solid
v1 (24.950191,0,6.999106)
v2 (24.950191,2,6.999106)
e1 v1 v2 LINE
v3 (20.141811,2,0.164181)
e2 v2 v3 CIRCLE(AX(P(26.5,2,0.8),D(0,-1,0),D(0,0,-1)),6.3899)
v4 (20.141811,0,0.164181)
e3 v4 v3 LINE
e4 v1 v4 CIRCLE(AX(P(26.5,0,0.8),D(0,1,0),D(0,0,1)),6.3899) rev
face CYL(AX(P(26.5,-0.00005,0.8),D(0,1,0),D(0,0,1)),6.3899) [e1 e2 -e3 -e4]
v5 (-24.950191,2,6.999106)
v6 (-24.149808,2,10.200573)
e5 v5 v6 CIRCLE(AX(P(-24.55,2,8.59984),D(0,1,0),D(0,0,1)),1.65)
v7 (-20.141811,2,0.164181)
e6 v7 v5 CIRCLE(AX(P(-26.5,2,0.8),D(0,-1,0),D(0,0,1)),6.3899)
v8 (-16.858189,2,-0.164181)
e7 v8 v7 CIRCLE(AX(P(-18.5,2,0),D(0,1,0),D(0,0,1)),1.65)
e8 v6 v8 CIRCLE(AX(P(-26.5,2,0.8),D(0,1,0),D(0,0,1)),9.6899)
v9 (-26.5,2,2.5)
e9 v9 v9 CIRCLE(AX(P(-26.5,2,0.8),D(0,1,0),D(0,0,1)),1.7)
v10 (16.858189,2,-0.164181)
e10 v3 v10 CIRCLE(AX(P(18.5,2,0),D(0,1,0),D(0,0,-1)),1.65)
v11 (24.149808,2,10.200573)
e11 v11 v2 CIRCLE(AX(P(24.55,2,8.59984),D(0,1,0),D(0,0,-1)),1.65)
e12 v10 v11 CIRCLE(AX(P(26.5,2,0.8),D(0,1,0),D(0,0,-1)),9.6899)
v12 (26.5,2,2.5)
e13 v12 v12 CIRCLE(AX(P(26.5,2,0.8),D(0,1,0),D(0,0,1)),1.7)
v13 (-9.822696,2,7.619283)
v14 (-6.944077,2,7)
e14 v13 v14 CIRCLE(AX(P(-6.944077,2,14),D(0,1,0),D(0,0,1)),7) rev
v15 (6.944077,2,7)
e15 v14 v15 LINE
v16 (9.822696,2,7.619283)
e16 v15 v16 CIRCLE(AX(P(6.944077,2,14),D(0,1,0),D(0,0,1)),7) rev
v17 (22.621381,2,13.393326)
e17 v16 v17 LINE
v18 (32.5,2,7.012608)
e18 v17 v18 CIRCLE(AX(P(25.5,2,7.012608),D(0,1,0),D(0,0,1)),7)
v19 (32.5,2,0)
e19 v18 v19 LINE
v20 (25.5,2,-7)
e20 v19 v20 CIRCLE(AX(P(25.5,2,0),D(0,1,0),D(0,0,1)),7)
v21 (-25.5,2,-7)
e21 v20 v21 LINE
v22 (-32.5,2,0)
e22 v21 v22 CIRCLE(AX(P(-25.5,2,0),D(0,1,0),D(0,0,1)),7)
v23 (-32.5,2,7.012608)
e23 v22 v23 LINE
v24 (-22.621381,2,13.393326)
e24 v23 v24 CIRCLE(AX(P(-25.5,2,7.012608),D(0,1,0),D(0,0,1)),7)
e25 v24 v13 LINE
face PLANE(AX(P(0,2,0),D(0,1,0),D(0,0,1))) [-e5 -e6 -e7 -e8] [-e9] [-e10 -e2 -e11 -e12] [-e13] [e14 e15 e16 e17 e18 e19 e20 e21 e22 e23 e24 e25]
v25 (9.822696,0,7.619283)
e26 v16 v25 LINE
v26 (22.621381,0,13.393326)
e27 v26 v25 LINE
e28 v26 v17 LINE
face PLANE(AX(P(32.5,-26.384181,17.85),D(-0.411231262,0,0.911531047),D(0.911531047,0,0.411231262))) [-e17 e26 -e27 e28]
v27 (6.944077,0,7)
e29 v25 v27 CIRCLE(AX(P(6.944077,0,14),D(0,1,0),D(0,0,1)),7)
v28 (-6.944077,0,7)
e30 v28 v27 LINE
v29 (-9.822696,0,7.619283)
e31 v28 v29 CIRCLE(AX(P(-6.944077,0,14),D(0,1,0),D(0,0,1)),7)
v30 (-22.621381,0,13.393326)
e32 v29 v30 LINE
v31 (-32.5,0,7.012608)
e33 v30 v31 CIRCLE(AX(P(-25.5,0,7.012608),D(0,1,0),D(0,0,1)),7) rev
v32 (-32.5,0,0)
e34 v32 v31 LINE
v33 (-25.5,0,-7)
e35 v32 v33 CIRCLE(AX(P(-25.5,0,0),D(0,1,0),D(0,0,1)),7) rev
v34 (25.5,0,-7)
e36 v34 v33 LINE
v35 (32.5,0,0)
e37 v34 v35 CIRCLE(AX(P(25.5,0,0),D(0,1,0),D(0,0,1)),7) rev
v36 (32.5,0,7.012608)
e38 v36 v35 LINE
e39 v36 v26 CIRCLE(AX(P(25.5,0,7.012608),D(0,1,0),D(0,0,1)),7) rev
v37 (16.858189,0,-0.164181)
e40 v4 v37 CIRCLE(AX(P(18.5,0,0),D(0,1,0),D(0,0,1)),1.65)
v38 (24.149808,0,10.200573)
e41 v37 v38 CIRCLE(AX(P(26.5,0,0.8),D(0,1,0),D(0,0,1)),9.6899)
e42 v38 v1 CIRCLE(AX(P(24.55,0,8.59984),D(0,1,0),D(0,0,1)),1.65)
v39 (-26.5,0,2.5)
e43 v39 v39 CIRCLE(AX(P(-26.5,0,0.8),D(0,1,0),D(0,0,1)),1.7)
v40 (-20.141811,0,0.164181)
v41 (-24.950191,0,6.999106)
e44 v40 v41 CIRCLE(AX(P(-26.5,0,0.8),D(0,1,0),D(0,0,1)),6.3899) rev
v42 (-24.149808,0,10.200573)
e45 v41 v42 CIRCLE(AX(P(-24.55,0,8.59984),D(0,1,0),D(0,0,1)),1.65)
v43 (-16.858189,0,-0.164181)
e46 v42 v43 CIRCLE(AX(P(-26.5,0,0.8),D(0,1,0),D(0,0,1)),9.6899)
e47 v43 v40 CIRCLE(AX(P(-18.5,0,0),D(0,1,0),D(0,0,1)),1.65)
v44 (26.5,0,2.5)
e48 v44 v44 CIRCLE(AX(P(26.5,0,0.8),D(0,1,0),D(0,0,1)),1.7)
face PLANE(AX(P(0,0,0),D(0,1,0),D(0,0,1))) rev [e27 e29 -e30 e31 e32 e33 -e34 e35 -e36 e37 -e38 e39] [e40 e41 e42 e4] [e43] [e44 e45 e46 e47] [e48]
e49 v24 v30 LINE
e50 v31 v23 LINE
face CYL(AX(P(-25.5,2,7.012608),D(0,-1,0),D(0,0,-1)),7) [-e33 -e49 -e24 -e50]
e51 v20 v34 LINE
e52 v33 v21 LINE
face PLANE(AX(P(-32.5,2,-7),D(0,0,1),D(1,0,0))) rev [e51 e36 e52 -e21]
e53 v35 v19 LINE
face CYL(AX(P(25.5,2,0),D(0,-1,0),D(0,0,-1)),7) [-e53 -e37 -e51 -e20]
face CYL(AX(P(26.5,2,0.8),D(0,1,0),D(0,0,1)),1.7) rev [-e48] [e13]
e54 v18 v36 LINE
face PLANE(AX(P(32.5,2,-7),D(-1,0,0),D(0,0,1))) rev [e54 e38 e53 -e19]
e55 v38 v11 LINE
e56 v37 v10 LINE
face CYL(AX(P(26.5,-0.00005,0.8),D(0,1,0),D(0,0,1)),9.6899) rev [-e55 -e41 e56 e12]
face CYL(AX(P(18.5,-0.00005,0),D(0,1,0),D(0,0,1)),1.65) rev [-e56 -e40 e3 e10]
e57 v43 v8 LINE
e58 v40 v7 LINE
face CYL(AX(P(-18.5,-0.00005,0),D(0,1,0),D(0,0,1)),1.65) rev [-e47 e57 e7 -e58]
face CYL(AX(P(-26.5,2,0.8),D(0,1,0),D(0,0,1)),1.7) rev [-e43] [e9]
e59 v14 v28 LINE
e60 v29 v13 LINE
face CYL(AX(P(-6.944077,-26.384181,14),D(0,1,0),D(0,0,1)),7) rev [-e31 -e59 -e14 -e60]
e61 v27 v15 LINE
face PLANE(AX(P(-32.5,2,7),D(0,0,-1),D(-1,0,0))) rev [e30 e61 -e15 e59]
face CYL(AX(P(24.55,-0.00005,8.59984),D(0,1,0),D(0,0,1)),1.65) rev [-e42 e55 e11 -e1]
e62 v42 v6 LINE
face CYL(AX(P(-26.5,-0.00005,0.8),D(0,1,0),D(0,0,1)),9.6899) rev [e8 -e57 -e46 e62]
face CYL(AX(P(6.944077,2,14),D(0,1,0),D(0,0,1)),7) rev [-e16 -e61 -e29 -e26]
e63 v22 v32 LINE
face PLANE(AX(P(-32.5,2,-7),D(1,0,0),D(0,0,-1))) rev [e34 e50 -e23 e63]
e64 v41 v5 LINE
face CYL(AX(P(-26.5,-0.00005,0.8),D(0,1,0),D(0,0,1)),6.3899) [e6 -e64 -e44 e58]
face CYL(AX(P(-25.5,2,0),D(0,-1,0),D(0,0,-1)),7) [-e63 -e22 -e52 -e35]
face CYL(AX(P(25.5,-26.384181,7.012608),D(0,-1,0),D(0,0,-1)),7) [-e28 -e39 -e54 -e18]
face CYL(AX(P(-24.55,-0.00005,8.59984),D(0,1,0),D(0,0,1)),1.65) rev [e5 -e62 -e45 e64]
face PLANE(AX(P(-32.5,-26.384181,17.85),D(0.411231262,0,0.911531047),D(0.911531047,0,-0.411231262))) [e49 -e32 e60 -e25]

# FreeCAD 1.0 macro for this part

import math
import FreeCAD as App
import Part
import Sketcher

V = App.Vector


def edges_at(feature, points):
    """Names of the edges that pass closest to the given points."""
    edges = feature.Shape.Edges
    near = lambda p: min(range(len(edges)), key=lambda i: edges[i].distToShape(Part.Vertex(*p))[0])
    return sorted({f"Edge{near(p) + 1}" for p in points})

doc = App.newDocument("Part")
params = doc.addObject("Spreadsheet::Sheet", "Params")
for row, (alias, value) in enumerate([
    ("sketch1_width", "65 mm"),
    ("sketch1_height", "14 mm"),
    ("pad1_length", "2 mm"),
    ("sketch2_width", "24.05 mm"),
    ("sketch2_height", "10.85 mm"),
    ("pad2_length", "2 mm"),
    ("sketch3_diameter", "3.4 mm"),
    ("hole_diameter", "3.4 mm"),
    ("sketch4_radius", "1.65 mm"),
    ("fillet_radius", "7 mm"),
], start=1):
    params.set(f"A{row}", alias)
    params.set(f"B{row}", "=" + value)
    params.setAlias(f"B{row}", alias)

body = doc.addObject("PartDesign::Body", "Body")

# Sketch on XZ plane
sketch1 = body.newObject("Sketcher::SketchObject", "Sketch")
sketch1.AttachmentSupport = (doc.getObject("XZ_Plane"), [""])
sketch1.MapMode = "FlatFace"
sketch1.addGeometry([
    Part.LineSegment(V(-32, -7, 0), V(-32, 7, 0)),
    Part.LineSegment(V(-32, 7, 0), V(32, 7, 0)),
    Part.LineSegment(V(32, 7, 0), V(32, -7, 0)),
    Part.LineSegment(V(32, -7, 0), V(-32, -7, 0)),
], False)
sketch1.addConstraint([
    Sketcher.Constraint("Coincident", 0, 2, 1, 1),
    Sketcher.Constraint("Coincident", 1, 2, 2, 1),
    Sketcher.Constraint("Coincident", 2, 2, 3, 1),
    Sketcher.Constraint("Coincident", 3, 2, 0, 1),
    Sketcher.Constraint("Vertical", 0),
    Sketcher.Constraint("Horizontal", 1),
    Sketcher.Constraint("Vertical", 2),
    Sketcher.Constraint("Horizontal", 3),
    Sketcher.Constraint("Symmetric", 0, 2, 2, 2, -1, 1),
    Sketcher.Constraint("DistanceX", 1, 1, 1, 2, 65.0),
    Sketcher.Constraint("DistanceY", 0, 1, 0, 2, 14.0),
])
sketch1.setExpression("Constraints[9]", "Params.sketch1_width")
sketch1.setExpression("Constraints[10]", "Params.sketch1_height")
pad1 = body.newObject("PartDesign::Pad", "Pad")
pad1.Profile = sketch1
pad1.setExpression("Length", "Params.pad1_length")
pad1.Reversed = True

# Sketch on XZ plane
sketch2 = body.newObject("Sketcher::SketchObject", "Sketch001")
sketch2.AttachmentSupport = (doc.getObject("XZ_Plane"), [""])
sketch2.MapMode = "FlatFace"
sketch2.AttachmentOffset = App.Placement(V(0, 0, -2), App.Rotation())
sketch2.addGeometry([
    Part.LineSegment(V(-32, 7, 0), V(-32, 18, 0)),  # 0
    Part.LineSegment(V(-32, 18, 0), V(-8, 7, 0)),  # 1
    Part.LineSegment(V(-8, 7, 0), V(-32, 7, 0)),  # 2
    Part.LineSegment(V(32, 7, 0), V(8, 7, 0)),  # 3
    Part.LineSegment(V(8, 7, 0), V(32, 18, 0)),  # 4
    Part.LineSegment(V(32, 18, 0), V(32, 7, 0)),  # 5
], False)
sketch2.addConstraint([
    Sketcher.Constraint("Coincident", 0, 2, 1, 1),
    Sketcher.Constraint("Coincident", 1, 2, 2, 1),
    Sketcher.Constraint("Coincident", 2, 2, 0, 1),
    Sketcher.Constraint("Coincident", 3, 2, 4, 1),
    Sketcher.Constraint("Coincident", 4, 2, 5, 1),
    Sketcher.Constraint("Coincident", 5, 2, 3, 1),
    Sketcher.Constraint("Vertical", 0),
    Sketcher.Constraint("Horizontal", 2),
    Sketcher.Constraint("Horizontal", 3),
    Sketcher.Constraint("Vertical", 5),
    Sketcher.Constraint("Symmetric", 1, 2, 3, 2, -2),
    Sketcher.Constraint("Symmetric", 0, 2, 4, 2, -2),
    Sketcher.Constraint("DistanceY", -1, 1, 1, 2, 7.0),
    Sketcher.Constraint("DistanceX", 0, 2, 4, 2, 65.0),
    Sketcher.Constraint("DistanceX", 2, 2, 2, 1, 24.05),
    Sketcher.Constraint("DistanceY", 0, 1, 0, 2, 10.85),
])
sketch2.setExpression("Constraints[14]", "Params.sketch2_width")
sketch2.setExpression("Constraints[15]", "Params.sketch2_height")
pad2 = body.newObject("PartDesign::Pad", "Pad001")
pad2.Profile = sketch2
pad2.setExpression("Length", "Params.pad2_length")

# Sketch on XZ plane
sketch3 = body.newObject("Sketcher::SketchObject", "Sketch002")
sketch3.AttachmentSupport = (doc.getObject("XZ_Plane"), [""])
sketch3.MapMode = "FlatFace"
sketch3.AttachmentOffset = App.Placement(V(0, 0, -2), App.Rotation())
sketch3.addGeometry([
    Part.Circle(V(-26.5, 0.8, 0), V(0, 0, 1), 1.7),
    Part.Circle(V(26.5, 0.8, 0), V(0, 0, 1), 1.7),
], False)
sketch3.addConstraint([
    Sketcher.Constraint("Equal", 0, 1),
    Sketcher.Constraint("Symmetric", 0, 3, 1, 3, -2),
    Sketcher.Constraint("Diameter", 0, 3.4),
    Sketcher.Constraint("DistanceX", 0, 3, 1, 3, 53.0),
    Sketcher.Constraint("DistanceY", -1, 1, 0, 3, 0.8),
])
sketch3.setExpression("Constraints[2]", "Params.sketch3_diameter")
doc.recompute()
hole = body.newObject("PartDesign::Hole", "Hole")
hole.Profile = sketch3
hole.ThreadType = "None"
hole.setExpression("Diameter", "Params.hole_diameter")
hole.DepthType = "ThroughAll"
hole.Reversed = True

# Sketch on XZ plane
sketch4 = body.newObject("Sketcher::SketchObject", "Sketch003")
sketch4.AttachmentSupport = (doc.getObject("XZ_Plane"), [""])
sketch4.MapMode = "FlatFace"
sketch4.AttachmentOffset = App.Placement(V(0, 0, -2), App.Rotation())
sketch4.addGeometry([
    Part.ArcOfCircle(Part.Circle(V(-26.5, 0.8, 0), V(0, 0, 1), 9.7), math.radians(-6), math.radians(76)),  # 0
    Part.ArcOfCircle(Part.Circle(V(-18.5, 0, 0), V(0, 0, 1), 1.6), math.radians(174), math.radians(354)),  # 1
    Part.ArcOfCircle(Part.Circle(V(-26.5, 0.8, 0), V(0, 0, 1), 6.4), math.radians(-6), math.radians(76)),  # 2
    Part.ArcOfCircle(Part.Circle(V(-24.6, 8.6, 0), V(0, 0, 1), 1.6), math.radians(76), math.radians(256)),  # 3
    Part.ArcOfCircle(Part.Circle(V(26.5, 0.8, 0), V(0, 0, 1), 9.7), math.radians(104), math.radians(186)),  # 4
    Part.ArcOfCircle(Part.Circle(V(24.6, 8.6, 0), V(0, 0, 1), 1.6), math.radians(-76), math.radians(104)),  # 5
    Part.ArcOfCircle(Part.Circle(V(26.5, 0.8, 0), V(0, 0, 1), 6.4), math.radians(104), math.radians(186)),  # 6
    Part.ArcOfCircle(Part.Circle(V(18.5, 0, 0), V(0, 0, 1), 1.6), math.radians(-174), math.radians(6)),  # 7
], False)
sketch4.addConstraint([
    Sketcher.Constraint("Tangent", 0, 1, 1, 2),
    Sketcher.Constraint("Tangent", 1, 1, 2, 1),
    Sketcher.Constraint("Tangent", 2, 2, 3, 2),
    Sketcher.Constraint("Tangent", 3, 1, 0, 2),
    Sketcher.Constraint("Tangent", 4, 1, 5, 2),
    Sketcher.Constraint("Tangent", 5, 1, 6, 1),
    Sketcher.Constraint("Tangent", 6, 2, 7, 2),
    Sketcher.Constraint("Tangent", 7, 1, 4, 2),
    Sketcher.Constraint("Coincident", 2, 3, 0, 3),
    Sketcher.Constraint("Coincident", 6, 3, 4, 3),
    Sketcher.Constraint("Equal", 0, 4),
    Sketcher.Constraint("Equal", 3, 5),
    Sketcher.Constraint("Symmetric", 1, 3, 7, 3, -1, 1),
    Sketcher.Constraint("Symmetric", 0, 3, 4, 3, -2),
    Sketcher.Constraint("Horizontal", 3, 3, 5, 3),
    Sketcher.Constraint("Radius", 1, 1.65),
    Sketcher.Constraint("DistanceX", 0, 3, 1, 3, 8.0),
    Sketcher.Constraint("DistanceX", 1, 3, 4, 3, 45.0),
    Sketcher.Constraint("DistanceY", -1, 1, 0, 3, 0.8),
    Sketcher.Constraint("DistanceX", 3, 3, 5, 3, 49.1),
])
sketch4.setExpression("Constraints[15]", "Params.sketch4_radius")
pocket1 = body.newObject("PartDesign::Pocket", "Pocket")
pocket1.Profile = sketch4
pocket1.Type = "ThroughAll"
pocket1.Reversed = True
doc.recompute()

fillet = body.newObject("PartDesign::Fillet", "Fillet")
fillet.Base = (pocket1, edges_at(pocket1, [
    (32.5, 1, -7),
    (-32.5, 1, -7),
    (32.5, 1, 17.85),
    (8.45, 1, 7),
    (-8.45, 1, 7),
    (-32.5, 1, 17.85),
]))
fillet.setExpression("Radius", "Params.fillet_radius")

doc.recompute()
